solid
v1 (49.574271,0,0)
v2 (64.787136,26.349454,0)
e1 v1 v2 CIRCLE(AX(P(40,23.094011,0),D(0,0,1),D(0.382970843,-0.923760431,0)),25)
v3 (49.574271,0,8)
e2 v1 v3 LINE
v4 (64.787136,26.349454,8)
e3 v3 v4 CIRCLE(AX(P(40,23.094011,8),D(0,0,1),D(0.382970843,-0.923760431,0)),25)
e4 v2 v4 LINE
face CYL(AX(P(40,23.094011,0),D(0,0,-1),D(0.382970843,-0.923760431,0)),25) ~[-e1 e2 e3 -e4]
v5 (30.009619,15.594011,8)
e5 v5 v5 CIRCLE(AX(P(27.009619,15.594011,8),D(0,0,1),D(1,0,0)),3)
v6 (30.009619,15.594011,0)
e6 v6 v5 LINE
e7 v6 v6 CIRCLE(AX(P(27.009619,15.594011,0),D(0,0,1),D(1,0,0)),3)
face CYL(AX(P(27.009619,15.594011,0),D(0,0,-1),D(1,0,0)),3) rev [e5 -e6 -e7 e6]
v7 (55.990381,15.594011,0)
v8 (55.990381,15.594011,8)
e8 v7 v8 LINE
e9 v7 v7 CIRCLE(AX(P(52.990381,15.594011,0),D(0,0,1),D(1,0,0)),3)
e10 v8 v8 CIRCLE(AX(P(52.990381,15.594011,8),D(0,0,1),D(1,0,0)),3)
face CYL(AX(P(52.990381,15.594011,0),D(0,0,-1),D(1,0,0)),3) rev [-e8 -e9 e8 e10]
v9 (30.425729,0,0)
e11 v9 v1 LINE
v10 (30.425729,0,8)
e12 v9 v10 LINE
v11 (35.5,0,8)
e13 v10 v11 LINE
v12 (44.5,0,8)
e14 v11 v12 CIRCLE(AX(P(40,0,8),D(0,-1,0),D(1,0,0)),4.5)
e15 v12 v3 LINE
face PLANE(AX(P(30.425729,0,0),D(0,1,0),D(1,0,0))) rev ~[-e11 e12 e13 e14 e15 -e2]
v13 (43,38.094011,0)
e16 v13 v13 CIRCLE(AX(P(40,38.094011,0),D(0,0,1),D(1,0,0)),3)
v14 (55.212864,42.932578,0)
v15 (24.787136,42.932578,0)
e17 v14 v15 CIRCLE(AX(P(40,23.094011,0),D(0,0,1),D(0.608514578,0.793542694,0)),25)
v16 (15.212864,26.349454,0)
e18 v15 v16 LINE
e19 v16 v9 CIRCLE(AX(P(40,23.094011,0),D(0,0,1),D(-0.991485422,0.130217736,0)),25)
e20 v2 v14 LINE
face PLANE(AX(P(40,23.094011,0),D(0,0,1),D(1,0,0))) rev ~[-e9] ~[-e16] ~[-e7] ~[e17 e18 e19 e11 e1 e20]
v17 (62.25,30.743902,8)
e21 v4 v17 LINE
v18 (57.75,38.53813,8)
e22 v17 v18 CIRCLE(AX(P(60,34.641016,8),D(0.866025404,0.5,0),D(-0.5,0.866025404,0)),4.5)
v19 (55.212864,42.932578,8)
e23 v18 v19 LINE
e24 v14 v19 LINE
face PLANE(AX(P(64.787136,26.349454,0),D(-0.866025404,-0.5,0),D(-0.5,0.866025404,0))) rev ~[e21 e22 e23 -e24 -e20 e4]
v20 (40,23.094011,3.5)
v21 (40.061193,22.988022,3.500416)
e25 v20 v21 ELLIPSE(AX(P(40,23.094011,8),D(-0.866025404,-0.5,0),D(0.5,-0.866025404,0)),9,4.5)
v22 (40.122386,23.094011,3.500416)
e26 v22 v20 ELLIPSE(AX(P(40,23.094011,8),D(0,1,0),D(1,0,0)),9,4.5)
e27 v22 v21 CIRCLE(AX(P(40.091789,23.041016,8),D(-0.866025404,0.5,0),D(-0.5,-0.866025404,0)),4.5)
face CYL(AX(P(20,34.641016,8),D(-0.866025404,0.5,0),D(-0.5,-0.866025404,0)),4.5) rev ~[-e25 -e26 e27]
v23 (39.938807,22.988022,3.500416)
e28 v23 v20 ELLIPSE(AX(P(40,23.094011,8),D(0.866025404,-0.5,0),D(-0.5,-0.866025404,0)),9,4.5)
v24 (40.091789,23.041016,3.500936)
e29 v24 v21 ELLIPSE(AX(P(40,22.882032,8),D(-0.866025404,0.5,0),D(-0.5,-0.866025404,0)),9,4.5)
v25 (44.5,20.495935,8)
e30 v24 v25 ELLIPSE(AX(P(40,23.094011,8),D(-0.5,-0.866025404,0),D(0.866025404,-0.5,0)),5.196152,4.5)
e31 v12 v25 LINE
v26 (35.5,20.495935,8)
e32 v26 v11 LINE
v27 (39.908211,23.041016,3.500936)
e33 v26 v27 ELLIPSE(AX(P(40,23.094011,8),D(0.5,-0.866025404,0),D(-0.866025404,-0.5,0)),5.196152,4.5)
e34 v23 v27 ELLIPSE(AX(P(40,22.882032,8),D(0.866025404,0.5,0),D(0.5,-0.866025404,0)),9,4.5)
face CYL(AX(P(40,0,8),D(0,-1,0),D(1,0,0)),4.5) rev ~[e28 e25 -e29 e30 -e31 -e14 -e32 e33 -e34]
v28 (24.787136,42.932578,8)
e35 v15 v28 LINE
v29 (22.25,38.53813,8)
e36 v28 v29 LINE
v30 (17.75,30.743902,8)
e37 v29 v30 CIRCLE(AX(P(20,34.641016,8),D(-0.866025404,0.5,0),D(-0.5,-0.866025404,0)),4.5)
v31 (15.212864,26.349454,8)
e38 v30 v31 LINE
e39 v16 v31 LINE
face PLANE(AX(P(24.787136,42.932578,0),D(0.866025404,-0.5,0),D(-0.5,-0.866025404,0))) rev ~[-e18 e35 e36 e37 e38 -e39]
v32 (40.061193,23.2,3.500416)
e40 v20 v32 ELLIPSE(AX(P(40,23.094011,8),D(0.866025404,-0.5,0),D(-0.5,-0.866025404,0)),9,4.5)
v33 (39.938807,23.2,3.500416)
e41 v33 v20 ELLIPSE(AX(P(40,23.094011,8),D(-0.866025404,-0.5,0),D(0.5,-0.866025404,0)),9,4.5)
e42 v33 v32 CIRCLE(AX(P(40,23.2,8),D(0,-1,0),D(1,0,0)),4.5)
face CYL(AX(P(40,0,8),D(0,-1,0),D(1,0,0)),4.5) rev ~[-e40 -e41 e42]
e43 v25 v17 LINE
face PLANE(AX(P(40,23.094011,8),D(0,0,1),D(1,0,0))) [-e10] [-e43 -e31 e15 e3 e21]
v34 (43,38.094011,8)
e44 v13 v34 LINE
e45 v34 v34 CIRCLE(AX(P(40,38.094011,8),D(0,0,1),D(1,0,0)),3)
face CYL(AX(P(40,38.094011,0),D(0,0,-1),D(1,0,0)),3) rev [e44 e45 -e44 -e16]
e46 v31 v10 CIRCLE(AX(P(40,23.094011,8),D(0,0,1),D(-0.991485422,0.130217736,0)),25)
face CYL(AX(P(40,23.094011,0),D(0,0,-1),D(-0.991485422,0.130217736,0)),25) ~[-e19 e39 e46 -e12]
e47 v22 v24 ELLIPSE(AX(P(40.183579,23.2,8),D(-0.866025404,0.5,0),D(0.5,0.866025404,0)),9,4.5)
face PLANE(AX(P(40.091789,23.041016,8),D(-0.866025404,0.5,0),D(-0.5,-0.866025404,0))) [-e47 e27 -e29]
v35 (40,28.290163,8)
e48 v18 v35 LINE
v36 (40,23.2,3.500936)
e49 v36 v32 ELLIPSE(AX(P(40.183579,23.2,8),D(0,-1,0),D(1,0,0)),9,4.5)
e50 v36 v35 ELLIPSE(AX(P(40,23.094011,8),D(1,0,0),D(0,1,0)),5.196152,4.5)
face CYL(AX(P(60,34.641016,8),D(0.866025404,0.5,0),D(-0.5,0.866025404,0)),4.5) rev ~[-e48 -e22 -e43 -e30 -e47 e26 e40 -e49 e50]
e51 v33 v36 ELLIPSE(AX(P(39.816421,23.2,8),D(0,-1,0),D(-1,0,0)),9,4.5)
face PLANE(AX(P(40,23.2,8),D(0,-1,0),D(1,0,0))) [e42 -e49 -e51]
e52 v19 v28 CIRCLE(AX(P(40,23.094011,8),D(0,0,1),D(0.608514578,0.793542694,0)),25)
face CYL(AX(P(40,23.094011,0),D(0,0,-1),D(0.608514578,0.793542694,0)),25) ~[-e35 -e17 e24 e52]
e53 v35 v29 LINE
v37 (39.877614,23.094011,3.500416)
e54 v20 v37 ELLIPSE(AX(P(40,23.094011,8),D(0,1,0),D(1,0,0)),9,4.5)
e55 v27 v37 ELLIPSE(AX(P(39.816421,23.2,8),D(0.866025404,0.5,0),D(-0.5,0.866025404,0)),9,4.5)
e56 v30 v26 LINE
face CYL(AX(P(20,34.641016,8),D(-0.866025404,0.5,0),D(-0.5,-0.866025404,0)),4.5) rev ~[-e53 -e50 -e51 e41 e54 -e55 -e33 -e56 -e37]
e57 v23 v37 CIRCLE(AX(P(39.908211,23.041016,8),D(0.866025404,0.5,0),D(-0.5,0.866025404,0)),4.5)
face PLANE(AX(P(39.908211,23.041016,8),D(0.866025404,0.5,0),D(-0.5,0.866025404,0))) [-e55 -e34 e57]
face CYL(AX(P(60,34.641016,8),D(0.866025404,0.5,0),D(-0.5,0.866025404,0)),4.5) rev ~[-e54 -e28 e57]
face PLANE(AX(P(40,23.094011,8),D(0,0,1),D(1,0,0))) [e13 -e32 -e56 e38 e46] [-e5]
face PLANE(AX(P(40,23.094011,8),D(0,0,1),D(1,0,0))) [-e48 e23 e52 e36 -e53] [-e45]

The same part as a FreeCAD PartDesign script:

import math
import FreeCAD as App
import Part
import Sketcher
from FreeCAD import Vector
Q = App.Units.Quantity

doc = App.newDocument("Part")
body = doc.addObject("PartDesign::Body", "Body")

sketch1 = body.newObject("Sketcher::SketchObject", "Sketch")
sketch1.AttachmentSupport = (doc.getObject("XY_Plane"), [""])
sketch1.MapMode = "FlatFace"
sketch1.addGeometry([
    Part.LineSegment(Vector(24.787136, 42.932578, 0), Vector(15.212864, 26.349454, 0)),
    Part.ArcOfCircle(Part.Circle(Vector(40, 23.094011, 0), Vector(0, 0, 1), 25), math.radians(172.517825), math.radians(247.482175)),
    Part.LineSegment(Vector(30.425729, 0, 0), Vector(49.574271, 0, 0)),
    Part.ArcOfCircle(Part.Circle(Vector(40, 23.094011, 0), Vector(0, 0, 1), 25), math.radians(-67.482175), math.radians(7.482175)),
    Part.LineSegment(Vector(64.787136, 26.349454, 0), Vector(55.212864, 42.932578, 0)),
    Part.ArcOfCircle(Part.Circle(Vector(40, 23.094011, 0), Vector(0, 0, 1), 25), math.radians(52.517825), math.radians(127.482175)),
    Part.Circle(Vector(27.009619, 15.594011, 0), Vector(0, 0, 1), 3),
    Part.Circle(Vector(52.990381, 15.594011, 0), Vector(0, 0, 1), 3),
    Part.Circle(Vector(40, 38.094011, 0), Vector(0, 0, 1), 3),
], False)
sketch1.addConstraint([
    Sketcher.Constraint("Coincident", 0, 2, 1, 1),
    Sketcher.Constraint("Coincident", 1, 2, 2, 1),
    Sketcher.Constraint("Coincident", 2, 2, 3, 1),
    Sketcher.Constraint("Coincident", 3, 2, 4, 1),
    Sketcher.Constraint("Coincident", 4, 2, 5, 1),
    Sketcher.Constraint("Coincident", 5, 2, 0, 1),
    Sketcher.Constraint("Horizontal", 2),
    Sketcher.Constraint("Coincident", 3, 3, 1, 3),
    Sketcher.Constraint("Coincident", 5, 3, 1, 3),
    Sketcher.Constraint("Equal", 1, 3),
    Sketcher.Constraint("Equal", 3, 5),
    Sketcher.Constraint("Equal", 6, 7),
    Sketcher.Constraint("Equal", 7, 8),
    Sketcher.Constraint("PointOnObject", 1, 2, -1),
    Sketcher.Constraint("Horizontal", 6, 3, 7, 3),
    Sketcher.Constraint("Horizontal", 0, 2, 3, 2),
    Sketcher.Constraint("Horizontal", 4, 2, 5, 2),
    Sketcher.Constraint("Vertical", 5, 3, 8, 3),
    Sketcher.Constraint("Diameter", 6, 6.0),
    Sketcher.Constraint("Radius", 1, 25.0),
    Sketcher.Constraint("Angle", 0, Q("-120 deg")),
    Sketcher.Constraint("DistanceX", -1, 1, 1, 3, 40.0),
    Sketcher.Constraint("DistanceY", 1, 3, 8, 3, 15.0),
    Sketcher.Constraint("DistanceY", 6, 3, 1, 3, 7.5),
    Sketcher.Constraint("DistanceX", 2, 1, 2, 2, 19.148542),
    Sketcher.Constraint("DistanceX", -1, 1, 6, 3, 27.009619),
    Sketcher.Constraint("DistanceX", -1, 1, 7, 3, 52.990381),
    Sketcher.Constraint("DistanceY", -1, 1, 4, 2, 42.932578),
])
pad1 = body.newObject("PartDesign::Pad", "Pad")
pad1.Profile = sketch1
pad1.Length = 8

sketch2 = body.newObject("Sketcher::SketchObject", "Sketch001")
sketch2.AttachmentSupport = (doc.getObject("XZ_Plane"), [""])
sketch2.MapMode = "FlatFace"
sketch2.addGeometry(Part.Circle(Vector(40, 8, 0), Vector(0, 0, 1), 4.5), False)
sketch2.addConstraint([
    Sketcher.Constraint("Diameter", 0, 9.0),
    Sketcher.Constraint("DistanceX", -1, 1, 0, 3, 40.0),
    Sketcher.Constraint("DistanceY", -1, 1, 0, 3, 8.0),
])
pocket1 = body.newObject("PartDesign::Pocket", "Pocket")
pocket1.Profile = sketch2
pocket1.Length = 23.2

sketch3 = body.newObject("Sketcher::SketchObject", "Sketch002")
sketch3.Placement = App.Placement(Vector(60, 34.641016, 0), App.Rotation(Vector(-0.5, 0.866025404, 0), Vector(0, 0, 1), Vector(0.866025404, 0.5, 0), "ZXY"))
sketch3.addGeometry(Part.Circle(Vector(0, 8, 0), Vector(0, 0, 1), 4.5), False)
sketch3.addConstraint([
    Sketcher.Constraint("PointOnObject", 0, 3, -2),
    Sketcher.Constraint("Diameter", 0, 9.0),
    Sketcher.Constraint("DistanceY", -1, 1, 0, 3, 8.0),
])
pocket2 = body.newObject("PartDesign::Pocket", "Pocket001")
pocket2.Profile = sketch3
pocket2.Length = 23.2

sketch4 = body.newObject("Sketcher::SketchObject", "Sketch003")
sketch4.Placement = App.Placement(Vector(0, 0, 0), App.Rotation(Vector(-0.5, -0.866025404, 0), Vector(0, 0, 1), Vector(-0.866025404, 0.5, 0), "ZXY"))
sketch4.addGeometry(Part.Circle(Vector(-40, 8, 0), Vector(0, 0, 1), 4.5), False)
sketch4.addConstraint([
    Sketcher.Constraint("Diameter", 0, 9.0),
    Sketcher.Constraint("DistanceX", 0, 3, -1, 1, 40.0),
    Sketcher.Constraint("DistanceY", -1, 1, 0, 3, 8.0),
])
pocket3 = body.newObject("PartDesign::Pocket", "Pocket002")
pocket3.Profile = sketch4
pocket3.Length = 23.2

doc.recompute()
